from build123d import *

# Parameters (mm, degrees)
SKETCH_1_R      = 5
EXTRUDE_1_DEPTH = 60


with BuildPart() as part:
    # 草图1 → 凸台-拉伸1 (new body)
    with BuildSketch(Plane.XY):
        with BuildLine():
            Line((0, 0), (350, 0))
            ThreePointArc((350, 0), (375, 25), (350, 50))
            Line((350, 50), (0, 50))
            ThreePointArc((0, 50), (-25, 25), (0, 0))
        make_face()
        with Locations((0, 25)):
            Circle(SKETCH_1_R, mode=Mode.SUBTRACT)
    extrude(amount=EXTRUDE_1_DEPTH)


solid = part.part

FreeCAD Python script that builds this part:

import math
import FreeCAD as App
import Part
import Sketcher
from FreeCAD import Vector

doc = App.newDocument("Part")
params = doc.addObject("Spreadsheet::Sheet", "Params")
for row, (alias, value) in enumerate([
    ("sketch1_diameter", "10 mm"),
    ("sketch1_radius", "25 mm"),
    ("sketch1_width", "350 mm"),
    ("pad1_length", "60 mm"),
], start=1):
    params.set(f"A{row}", alias)
    params.set(f"B{row}", "=" + value)
    params.setAlias(f"B{row}", alias)

body = doc.addObject("PartDesign::Body", "Body")

# Sketch on XY plane
sketch1 = body.newObject("Sketcher::SketchObject", "Sketch")
sketch1.AttachmentSupport = (doc.getObject("XY_Plane"), [""])
sketch1.MapMode = "FlatFace"
sketch1.addGeometry([
    Part.LineSegment(Vector(0, 0, 0), Vector(350, 0, 0)),  # 0
    Part.ArcOfCircle(Part.Circle(Vector(350, 25, 0), Vector(0, 0, 1), 25), math.radians(-90), math.radians(90)),  # 1
    Part.LineSegment(Vector(350, 50, 0), Vector(0, 50, 0)),  # 2
    Part.ArcOfCircle(Part.Circle(Vector(0, 25, 0), Vector(0, 0, 1), 25), math.radians(90), math.radians(270)),  # 3
    Part.Circle(Vector(0, 25, 0), Vector(0, 0, 1), 5),  # 4
], False)
sketch1.addConstraint([
    Sketcher.Constraint("Tangent", 0, 2, 1, 1),
    Sketcher.Constraint("Tangent", 1, 2, 2, 1),
    Sketcher.Constraint("Tangent", 2, 2, 3, 1),
    Sketcher.Constraint("Tangent", 3, 2, 0, 1),
    Sketcher.Constraint("Horizontal", 0),
    Sketcher.Constraint("Horizontal", 2),
    Sketcher.Constraint("Coincident", 3, 2, -1, 1),
    Sketcher.Constraint("Coincident", 4, 3, 3, 3),
    Sketcher.Constraint("Diameter", 4, 10.0),
    Sketcher.Constraint("Radius", 1, 25.0),
    Sketcher.Constraint("DistanceX", 0, 1, 0, 2, 350.0),
])
sketch1.setExpression("Constraints[8]", "Params.sketch1_diameter")
sketch1.setExpression("Constraints[9]", "Params.sketch1_radius")
sketch1.setExpression("Constraints[10]", "Params.sketch1_width")
pad1 = body.newObject("PartDesign::Pad", "Pad")
pad1.Profile = sketch1
pad1.setExpression("Length", "Params.pad1_length")

doc.recompute()
